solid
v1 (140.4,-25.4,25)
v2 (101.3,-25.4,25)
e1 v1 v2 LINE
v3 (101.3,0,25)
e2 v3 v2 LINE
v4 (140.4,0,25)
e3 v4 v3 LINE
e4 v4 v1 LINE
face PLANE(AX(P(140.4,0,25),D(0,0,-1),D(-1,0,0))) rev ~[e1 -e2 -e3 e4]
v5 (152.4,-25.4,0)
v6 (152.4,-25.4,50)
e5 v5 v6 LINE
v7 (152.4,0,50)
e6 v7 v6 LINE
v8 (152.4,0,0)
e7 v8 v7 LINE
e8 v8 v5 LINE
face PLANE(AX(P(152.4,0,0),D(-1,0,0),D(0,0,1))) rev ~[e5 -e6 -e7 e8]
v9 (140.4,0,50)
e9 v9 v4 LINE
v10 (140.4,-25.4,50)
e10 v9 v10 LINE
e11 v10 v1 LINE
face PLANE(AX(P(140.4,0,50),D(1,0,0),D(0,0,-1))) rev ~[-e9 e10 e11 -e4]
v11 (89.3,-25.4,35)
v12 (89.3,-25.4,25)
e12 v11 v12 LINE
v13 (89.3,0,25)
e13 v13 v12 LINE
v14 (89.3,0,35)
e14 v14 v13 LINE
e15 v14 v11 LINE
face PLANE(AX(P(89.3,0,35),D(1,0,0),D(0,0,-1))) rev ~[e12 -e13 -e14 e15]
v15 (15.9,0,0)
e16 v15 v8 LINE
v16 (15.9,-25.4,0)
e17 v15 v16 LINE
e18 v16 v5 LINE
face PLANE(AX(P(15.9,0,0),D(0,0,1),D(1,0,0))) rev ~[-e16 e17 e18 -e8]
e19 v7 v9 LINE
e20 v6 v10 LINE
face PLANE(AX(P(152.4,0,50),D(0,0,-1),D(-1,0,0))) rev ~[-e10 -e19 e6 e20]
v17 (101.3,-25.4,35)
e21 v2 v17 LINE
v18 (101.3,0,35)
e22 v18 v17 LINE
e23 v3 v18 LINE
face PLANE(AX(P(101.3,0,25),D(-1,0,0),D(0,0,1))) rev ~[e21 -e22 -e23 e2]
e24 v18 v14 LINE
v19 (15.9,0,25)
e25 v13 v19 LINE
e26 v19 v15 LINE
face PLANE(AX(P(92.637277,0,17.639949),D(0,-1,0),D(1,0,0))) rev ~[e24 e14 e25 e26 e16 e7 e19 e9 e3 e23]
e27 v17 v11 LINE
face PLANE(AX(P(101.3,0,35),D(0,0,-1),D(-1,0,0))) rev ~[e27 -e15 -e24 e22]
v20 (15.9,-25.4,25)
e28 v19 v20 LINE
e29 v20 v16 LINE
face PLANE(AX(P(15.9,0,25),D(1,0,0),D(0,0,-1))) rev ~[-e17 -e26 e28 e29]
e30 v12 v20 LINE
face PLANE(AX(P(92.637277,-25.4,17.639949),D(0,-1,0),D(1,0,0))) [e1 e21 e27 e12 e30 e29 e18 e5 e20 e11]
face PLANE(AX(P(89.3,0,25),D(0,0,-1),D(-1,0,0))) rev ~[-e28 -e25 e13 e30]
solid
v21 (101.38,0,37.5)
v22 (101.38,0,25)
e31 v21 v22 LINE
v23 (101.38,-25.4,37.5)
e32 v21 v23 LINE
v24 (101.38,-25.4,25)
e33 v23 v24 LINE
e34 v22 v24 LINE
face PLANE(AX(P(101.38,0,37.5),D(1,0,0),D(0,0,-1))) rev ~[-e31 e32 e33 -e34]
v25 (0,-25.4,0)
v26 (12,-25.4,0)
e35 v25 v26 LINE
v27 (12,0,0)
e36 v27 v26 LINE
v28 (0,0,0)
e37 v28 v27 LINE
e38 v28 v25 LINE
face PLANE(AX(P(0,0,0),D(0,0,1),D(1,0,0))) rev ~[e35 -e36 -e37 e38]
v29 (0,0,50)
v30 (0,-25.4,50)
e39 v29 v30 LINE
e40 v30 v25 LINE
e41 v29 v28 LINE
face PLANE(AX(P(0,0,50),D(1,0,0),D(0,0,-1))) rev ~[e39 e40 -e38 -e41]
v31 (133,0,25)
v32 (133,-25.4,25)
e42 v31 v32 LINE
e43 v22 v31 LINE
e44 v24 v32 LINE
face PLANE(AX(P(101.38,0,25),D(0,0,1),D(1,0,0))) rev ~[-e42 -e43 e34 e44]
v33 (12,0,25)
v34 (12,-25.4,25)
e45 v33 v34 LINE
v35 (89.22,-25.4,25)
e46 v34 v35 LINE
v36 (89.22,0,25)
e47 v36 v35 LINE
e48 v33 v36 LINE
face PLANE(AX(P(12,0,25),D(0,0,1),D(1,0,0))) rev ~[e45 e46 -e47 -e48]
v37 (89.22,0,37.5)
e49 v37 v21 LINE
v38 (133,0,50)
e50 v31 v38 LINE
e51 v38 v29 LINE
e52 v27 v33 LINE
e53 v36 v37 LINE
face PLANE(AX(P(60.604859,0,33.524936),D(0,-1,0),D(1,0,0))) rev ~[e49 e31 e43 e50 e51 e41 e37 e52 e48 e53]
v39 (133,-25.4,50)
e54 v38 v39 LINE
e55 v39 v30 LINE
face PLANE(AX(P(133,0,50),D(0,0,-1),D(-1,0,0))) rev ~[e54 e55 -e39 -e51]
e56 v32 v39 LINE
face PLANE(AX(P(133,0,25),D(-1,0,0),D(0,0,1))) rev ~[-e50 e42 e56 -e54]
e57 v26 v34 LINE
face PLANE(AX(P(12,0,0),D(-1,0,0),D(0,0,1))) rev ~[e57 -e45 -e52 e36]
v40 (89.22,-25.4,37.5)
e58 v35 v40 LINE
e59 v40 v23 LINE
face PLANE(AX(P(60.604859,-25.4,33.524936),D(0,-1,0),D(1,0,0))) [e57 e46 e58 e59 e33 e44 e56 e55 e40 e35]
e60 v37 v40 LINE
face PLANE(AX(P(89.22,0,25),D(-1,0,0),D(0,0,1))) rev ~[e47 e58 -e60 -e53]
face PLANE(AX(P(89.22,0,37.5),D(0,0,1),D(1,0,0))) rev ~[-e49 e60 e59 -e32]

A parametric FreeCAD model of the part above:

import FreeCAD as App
import Part
import Sketcher

doc = App.newDocument("Part")
body = doc.addObject("PartDesign::Body", "Body")

sketch1 = doc.addObject("Sketcher::SketchObject", "Sketch")
body.addObject(sketch1)
sketch1.AttachmentSupport = (doc.XZ_Plane, [""])
sketch1.MapMode = "FlatFace"
sketch1.addGeometry([
    Part.LineSegment(App.Vector(0, 50, 0), App.Vector(0, 0, 0)),
    Part.LineSegment(App.Vector(0, 0, 0), App.Vector(12, 0, 0)),
    Part.LineSegment(App.Vector(12, 0, 0), App.Vector(12, 25, 0)),
    Part.LineSegment(App.Vector(12, 25, 0), App.Vector(89, 25, 0)),
    Part.LineSegment(App.Vector(89, 25, 0), App.Vector(89, 38, 0)),
    Part.LineSegment(App.Vector(89, 38, 0), App.Vector(101, 38, 0)),
    Part.LineSegment(App.Vector(101, 38, 0), App.Vector(101, 25, 0)),
    Part.LineSegment(App.Vector(101, 25, 0), App.Vector(133, 25, 0)),
    Part.LineSegment(App.Vector(133, 25, 0), App.Vector(133, 50, 0)),
    Part.LineSegment(App.Vector(133, 50, 0), App.Vector(0, 50, 0)),
], False)
sketch1.addConstraint([
    Sketcher.Constraint("Coincident", 0, 2, 1, 1),
    Sketcher.Constraint("Coincident", 1, 2, 2, 1),
    Sketcher.Constraint("Coincident", 2, 2, 3, 1),
    Sketcher.Constraint("Coincident", 3, 2, 4, 1),
    Sketcher.Constraint("Coincident", 4, 2, 5, 1),
    Sketcher.Constraint("Coincident", 5, 2, 6, 1),
    Sketcher.Constraint("Coincident", 6, 2, 7, 1),
    Sketcher.Constraint("Coincident", 7, 2, 8, 1),
    Sketcher.Constraint("Coincident", 8, 2, 9, 1),
    Sketcher.Constraint("Coincident", 9, 2, 0, 1),
    Sketcher.Constraint("Vertical", 0),
    Sketcher.Constraint("Horizontal", 1),
    Sketcher.Constraint("Vertical", 2),
    Sketcher.Constraint("Horizontal", 3),
    Sketcher.Constraint("Vertical", 4),
    Sketcher.Constraint("Horizontal", 5),
    Sketcher.Constraint("Vertical", 6),
    Sketcher.Constraint("Horizontal", 7),
    Sketcher.Constraint("Vertical", 8),
    Sketcher.Constraint("Horizontal", 9),
    Sketcher.Constraint("Coincident", 0, 2, -1, 1),
    Sketcher.Constraint("Horizontal", 3, 2, 6, 2),
    Sketcher.Constraint("Equal", 2, 8),
    Sketcher.Constraint("DistanceX", 1, 1, 1, 2, 12.0),
    Sketcher.Constraint("DistanceX", 9, 2, 9, 1, 133.0),
    Sketcher.Constraint("DistanceY", 0, 2, 0, 1, 50.0),
    Sketcher.Constraint("DistanceY", 4, 1, 4, 2, 12.5),
    Sketcher.Constraint("DistanceX", 3, 1, 3, 2, 77.22),
    Sketcher.Constraint("DistanceX", 5, 1, 5, 2, 12.16),
])
pad1 = doc.addObject("PartDesign::Pad", "Pad")
body.addObject(pad1)
pad1.Profile = sketch1
pad1.Length = 25.4
body2 = doc.addObject("PartDesign::Body", "Body001")

sketch2 = doc.addObject("Sketcher::SketchObject", "Sketch001")
body2.addObject(sketch2)
sketch2.AttachmentSupport = (doc.getObject("XZ_Plane001"), [""])
sketch2.MapMode = "FlatFace"
sketch2.addGeometry([
    Part.LineSegment(App.Vector(16, 25, 0), App.Vector(16, 0, 0)),
    Part.LineSegment(App.Vector(16, 0, 0), App.Vector(152, 0, 0)),
    Part.LineSegment(App.Vector(152, 0, 0), App.Vector(152, 50, 0)),
    Part.LineSegment(App.Vector(152, 50, 0), App.Vector(140, 50, 0)),
    Part.LineSegment(App.Vector(140, 50, 0), App.Vector(140, 25, 0)),
    Part.LineSegment(App.Vector(140, 25, 0), App.Vector(101, 25, 0)),
    Part.LineSegment(App.Vector(101, 25, 0), App.Vector(101, 35, 0)),
    Part.LineSegment(App.Vector(101, 35, 0), App.Vector(89, 35, 0)),
    Part.LineSegment(App.Vector(89, 35, 0), App.Vector(89, 25, 0)),
    Part.LineSegment(App.Vector(89, 25, 0), App.Vector(16, 25, 0)),
], False)
sketch2.addConstraint([
    Sketcher.Constraint("Coincident", 0, 2, 1, 1),
    Sketcher.Constraint("Coincident", 1, 2, 2, 1),
    Sketcher.Constraint("Coincident", 2, 2, 3, 1),
    Sketcher.Constraint("Coincident", 3, 2, 4, 1),
    Sketcher.Constraint("Coincident", 4, 2, 5, 1),
    Sketcher.Constraint("Coincident", 5, 2, 6, 1),
    Sketcher.Constraint("Coincident", 6, 2, 7, 1),
    Sketcher.Constraint("Coincident", 7, 2, 8, 1),
    Sketcher.Constraint("Coincident", 8, 2, 9, 1),
    Sketcher.Constraint("Coincident", 9, 2, 0, 1),
    Sketcher.Constraint("Vertical", 0),
    Sketcher.Constraint("Horizontal", 1),
    Sketcher.Constraint("Vertical", 2),
    Sketcher.Constraint("Horizontal", 3),
    Sketcher.Constraint("Vertical", 4),
    Sketcher.Constraint("Horizontal", 5),
    Sketcher.Constraint("Vertical", 6),
    Sketcher.Constraint("Horizontal", 7),
    Sketcher.Constraint("Vertical", 8),
    Sketcher.Constraint("Horizontal", 9),
    Sketcher.Constraint("PointOnObject", 0, 2, -1),
    Sketcher.Constraint("Horizontal", 5, 2, 8, 2),
    Sketcher.Constraint("Equal", 3, 7),
    Sketcher.Constraint("Equal", 0, 4),
    Sketcher.Constraint("DistanceX", 3, 2, 3, 1, 12.0),
    Sketcher.Constraint("DistanceY", 0, 2, 0, 1, 25.0),
    Sketcher.Constraint("DistanceY", 6, 1, 6, 2, 10.0),
    Sketcher.Constraint("DistanceX", 1, 1, 1, 2, 136.5),
    Sketcher.Constraint("DistanceX", 5, 2, 5, 1, 39.1),
    Sketcher.Constraint("DistanceX", -1, 1, 0, 2, 15.9),
])
pad2 = doc.addObject("PartDesign::Pad", "Pad001")
body2.addObject(pad2)
pad2.Profile = sketch2
pad2.Length = 25.4

doc.recompute()
